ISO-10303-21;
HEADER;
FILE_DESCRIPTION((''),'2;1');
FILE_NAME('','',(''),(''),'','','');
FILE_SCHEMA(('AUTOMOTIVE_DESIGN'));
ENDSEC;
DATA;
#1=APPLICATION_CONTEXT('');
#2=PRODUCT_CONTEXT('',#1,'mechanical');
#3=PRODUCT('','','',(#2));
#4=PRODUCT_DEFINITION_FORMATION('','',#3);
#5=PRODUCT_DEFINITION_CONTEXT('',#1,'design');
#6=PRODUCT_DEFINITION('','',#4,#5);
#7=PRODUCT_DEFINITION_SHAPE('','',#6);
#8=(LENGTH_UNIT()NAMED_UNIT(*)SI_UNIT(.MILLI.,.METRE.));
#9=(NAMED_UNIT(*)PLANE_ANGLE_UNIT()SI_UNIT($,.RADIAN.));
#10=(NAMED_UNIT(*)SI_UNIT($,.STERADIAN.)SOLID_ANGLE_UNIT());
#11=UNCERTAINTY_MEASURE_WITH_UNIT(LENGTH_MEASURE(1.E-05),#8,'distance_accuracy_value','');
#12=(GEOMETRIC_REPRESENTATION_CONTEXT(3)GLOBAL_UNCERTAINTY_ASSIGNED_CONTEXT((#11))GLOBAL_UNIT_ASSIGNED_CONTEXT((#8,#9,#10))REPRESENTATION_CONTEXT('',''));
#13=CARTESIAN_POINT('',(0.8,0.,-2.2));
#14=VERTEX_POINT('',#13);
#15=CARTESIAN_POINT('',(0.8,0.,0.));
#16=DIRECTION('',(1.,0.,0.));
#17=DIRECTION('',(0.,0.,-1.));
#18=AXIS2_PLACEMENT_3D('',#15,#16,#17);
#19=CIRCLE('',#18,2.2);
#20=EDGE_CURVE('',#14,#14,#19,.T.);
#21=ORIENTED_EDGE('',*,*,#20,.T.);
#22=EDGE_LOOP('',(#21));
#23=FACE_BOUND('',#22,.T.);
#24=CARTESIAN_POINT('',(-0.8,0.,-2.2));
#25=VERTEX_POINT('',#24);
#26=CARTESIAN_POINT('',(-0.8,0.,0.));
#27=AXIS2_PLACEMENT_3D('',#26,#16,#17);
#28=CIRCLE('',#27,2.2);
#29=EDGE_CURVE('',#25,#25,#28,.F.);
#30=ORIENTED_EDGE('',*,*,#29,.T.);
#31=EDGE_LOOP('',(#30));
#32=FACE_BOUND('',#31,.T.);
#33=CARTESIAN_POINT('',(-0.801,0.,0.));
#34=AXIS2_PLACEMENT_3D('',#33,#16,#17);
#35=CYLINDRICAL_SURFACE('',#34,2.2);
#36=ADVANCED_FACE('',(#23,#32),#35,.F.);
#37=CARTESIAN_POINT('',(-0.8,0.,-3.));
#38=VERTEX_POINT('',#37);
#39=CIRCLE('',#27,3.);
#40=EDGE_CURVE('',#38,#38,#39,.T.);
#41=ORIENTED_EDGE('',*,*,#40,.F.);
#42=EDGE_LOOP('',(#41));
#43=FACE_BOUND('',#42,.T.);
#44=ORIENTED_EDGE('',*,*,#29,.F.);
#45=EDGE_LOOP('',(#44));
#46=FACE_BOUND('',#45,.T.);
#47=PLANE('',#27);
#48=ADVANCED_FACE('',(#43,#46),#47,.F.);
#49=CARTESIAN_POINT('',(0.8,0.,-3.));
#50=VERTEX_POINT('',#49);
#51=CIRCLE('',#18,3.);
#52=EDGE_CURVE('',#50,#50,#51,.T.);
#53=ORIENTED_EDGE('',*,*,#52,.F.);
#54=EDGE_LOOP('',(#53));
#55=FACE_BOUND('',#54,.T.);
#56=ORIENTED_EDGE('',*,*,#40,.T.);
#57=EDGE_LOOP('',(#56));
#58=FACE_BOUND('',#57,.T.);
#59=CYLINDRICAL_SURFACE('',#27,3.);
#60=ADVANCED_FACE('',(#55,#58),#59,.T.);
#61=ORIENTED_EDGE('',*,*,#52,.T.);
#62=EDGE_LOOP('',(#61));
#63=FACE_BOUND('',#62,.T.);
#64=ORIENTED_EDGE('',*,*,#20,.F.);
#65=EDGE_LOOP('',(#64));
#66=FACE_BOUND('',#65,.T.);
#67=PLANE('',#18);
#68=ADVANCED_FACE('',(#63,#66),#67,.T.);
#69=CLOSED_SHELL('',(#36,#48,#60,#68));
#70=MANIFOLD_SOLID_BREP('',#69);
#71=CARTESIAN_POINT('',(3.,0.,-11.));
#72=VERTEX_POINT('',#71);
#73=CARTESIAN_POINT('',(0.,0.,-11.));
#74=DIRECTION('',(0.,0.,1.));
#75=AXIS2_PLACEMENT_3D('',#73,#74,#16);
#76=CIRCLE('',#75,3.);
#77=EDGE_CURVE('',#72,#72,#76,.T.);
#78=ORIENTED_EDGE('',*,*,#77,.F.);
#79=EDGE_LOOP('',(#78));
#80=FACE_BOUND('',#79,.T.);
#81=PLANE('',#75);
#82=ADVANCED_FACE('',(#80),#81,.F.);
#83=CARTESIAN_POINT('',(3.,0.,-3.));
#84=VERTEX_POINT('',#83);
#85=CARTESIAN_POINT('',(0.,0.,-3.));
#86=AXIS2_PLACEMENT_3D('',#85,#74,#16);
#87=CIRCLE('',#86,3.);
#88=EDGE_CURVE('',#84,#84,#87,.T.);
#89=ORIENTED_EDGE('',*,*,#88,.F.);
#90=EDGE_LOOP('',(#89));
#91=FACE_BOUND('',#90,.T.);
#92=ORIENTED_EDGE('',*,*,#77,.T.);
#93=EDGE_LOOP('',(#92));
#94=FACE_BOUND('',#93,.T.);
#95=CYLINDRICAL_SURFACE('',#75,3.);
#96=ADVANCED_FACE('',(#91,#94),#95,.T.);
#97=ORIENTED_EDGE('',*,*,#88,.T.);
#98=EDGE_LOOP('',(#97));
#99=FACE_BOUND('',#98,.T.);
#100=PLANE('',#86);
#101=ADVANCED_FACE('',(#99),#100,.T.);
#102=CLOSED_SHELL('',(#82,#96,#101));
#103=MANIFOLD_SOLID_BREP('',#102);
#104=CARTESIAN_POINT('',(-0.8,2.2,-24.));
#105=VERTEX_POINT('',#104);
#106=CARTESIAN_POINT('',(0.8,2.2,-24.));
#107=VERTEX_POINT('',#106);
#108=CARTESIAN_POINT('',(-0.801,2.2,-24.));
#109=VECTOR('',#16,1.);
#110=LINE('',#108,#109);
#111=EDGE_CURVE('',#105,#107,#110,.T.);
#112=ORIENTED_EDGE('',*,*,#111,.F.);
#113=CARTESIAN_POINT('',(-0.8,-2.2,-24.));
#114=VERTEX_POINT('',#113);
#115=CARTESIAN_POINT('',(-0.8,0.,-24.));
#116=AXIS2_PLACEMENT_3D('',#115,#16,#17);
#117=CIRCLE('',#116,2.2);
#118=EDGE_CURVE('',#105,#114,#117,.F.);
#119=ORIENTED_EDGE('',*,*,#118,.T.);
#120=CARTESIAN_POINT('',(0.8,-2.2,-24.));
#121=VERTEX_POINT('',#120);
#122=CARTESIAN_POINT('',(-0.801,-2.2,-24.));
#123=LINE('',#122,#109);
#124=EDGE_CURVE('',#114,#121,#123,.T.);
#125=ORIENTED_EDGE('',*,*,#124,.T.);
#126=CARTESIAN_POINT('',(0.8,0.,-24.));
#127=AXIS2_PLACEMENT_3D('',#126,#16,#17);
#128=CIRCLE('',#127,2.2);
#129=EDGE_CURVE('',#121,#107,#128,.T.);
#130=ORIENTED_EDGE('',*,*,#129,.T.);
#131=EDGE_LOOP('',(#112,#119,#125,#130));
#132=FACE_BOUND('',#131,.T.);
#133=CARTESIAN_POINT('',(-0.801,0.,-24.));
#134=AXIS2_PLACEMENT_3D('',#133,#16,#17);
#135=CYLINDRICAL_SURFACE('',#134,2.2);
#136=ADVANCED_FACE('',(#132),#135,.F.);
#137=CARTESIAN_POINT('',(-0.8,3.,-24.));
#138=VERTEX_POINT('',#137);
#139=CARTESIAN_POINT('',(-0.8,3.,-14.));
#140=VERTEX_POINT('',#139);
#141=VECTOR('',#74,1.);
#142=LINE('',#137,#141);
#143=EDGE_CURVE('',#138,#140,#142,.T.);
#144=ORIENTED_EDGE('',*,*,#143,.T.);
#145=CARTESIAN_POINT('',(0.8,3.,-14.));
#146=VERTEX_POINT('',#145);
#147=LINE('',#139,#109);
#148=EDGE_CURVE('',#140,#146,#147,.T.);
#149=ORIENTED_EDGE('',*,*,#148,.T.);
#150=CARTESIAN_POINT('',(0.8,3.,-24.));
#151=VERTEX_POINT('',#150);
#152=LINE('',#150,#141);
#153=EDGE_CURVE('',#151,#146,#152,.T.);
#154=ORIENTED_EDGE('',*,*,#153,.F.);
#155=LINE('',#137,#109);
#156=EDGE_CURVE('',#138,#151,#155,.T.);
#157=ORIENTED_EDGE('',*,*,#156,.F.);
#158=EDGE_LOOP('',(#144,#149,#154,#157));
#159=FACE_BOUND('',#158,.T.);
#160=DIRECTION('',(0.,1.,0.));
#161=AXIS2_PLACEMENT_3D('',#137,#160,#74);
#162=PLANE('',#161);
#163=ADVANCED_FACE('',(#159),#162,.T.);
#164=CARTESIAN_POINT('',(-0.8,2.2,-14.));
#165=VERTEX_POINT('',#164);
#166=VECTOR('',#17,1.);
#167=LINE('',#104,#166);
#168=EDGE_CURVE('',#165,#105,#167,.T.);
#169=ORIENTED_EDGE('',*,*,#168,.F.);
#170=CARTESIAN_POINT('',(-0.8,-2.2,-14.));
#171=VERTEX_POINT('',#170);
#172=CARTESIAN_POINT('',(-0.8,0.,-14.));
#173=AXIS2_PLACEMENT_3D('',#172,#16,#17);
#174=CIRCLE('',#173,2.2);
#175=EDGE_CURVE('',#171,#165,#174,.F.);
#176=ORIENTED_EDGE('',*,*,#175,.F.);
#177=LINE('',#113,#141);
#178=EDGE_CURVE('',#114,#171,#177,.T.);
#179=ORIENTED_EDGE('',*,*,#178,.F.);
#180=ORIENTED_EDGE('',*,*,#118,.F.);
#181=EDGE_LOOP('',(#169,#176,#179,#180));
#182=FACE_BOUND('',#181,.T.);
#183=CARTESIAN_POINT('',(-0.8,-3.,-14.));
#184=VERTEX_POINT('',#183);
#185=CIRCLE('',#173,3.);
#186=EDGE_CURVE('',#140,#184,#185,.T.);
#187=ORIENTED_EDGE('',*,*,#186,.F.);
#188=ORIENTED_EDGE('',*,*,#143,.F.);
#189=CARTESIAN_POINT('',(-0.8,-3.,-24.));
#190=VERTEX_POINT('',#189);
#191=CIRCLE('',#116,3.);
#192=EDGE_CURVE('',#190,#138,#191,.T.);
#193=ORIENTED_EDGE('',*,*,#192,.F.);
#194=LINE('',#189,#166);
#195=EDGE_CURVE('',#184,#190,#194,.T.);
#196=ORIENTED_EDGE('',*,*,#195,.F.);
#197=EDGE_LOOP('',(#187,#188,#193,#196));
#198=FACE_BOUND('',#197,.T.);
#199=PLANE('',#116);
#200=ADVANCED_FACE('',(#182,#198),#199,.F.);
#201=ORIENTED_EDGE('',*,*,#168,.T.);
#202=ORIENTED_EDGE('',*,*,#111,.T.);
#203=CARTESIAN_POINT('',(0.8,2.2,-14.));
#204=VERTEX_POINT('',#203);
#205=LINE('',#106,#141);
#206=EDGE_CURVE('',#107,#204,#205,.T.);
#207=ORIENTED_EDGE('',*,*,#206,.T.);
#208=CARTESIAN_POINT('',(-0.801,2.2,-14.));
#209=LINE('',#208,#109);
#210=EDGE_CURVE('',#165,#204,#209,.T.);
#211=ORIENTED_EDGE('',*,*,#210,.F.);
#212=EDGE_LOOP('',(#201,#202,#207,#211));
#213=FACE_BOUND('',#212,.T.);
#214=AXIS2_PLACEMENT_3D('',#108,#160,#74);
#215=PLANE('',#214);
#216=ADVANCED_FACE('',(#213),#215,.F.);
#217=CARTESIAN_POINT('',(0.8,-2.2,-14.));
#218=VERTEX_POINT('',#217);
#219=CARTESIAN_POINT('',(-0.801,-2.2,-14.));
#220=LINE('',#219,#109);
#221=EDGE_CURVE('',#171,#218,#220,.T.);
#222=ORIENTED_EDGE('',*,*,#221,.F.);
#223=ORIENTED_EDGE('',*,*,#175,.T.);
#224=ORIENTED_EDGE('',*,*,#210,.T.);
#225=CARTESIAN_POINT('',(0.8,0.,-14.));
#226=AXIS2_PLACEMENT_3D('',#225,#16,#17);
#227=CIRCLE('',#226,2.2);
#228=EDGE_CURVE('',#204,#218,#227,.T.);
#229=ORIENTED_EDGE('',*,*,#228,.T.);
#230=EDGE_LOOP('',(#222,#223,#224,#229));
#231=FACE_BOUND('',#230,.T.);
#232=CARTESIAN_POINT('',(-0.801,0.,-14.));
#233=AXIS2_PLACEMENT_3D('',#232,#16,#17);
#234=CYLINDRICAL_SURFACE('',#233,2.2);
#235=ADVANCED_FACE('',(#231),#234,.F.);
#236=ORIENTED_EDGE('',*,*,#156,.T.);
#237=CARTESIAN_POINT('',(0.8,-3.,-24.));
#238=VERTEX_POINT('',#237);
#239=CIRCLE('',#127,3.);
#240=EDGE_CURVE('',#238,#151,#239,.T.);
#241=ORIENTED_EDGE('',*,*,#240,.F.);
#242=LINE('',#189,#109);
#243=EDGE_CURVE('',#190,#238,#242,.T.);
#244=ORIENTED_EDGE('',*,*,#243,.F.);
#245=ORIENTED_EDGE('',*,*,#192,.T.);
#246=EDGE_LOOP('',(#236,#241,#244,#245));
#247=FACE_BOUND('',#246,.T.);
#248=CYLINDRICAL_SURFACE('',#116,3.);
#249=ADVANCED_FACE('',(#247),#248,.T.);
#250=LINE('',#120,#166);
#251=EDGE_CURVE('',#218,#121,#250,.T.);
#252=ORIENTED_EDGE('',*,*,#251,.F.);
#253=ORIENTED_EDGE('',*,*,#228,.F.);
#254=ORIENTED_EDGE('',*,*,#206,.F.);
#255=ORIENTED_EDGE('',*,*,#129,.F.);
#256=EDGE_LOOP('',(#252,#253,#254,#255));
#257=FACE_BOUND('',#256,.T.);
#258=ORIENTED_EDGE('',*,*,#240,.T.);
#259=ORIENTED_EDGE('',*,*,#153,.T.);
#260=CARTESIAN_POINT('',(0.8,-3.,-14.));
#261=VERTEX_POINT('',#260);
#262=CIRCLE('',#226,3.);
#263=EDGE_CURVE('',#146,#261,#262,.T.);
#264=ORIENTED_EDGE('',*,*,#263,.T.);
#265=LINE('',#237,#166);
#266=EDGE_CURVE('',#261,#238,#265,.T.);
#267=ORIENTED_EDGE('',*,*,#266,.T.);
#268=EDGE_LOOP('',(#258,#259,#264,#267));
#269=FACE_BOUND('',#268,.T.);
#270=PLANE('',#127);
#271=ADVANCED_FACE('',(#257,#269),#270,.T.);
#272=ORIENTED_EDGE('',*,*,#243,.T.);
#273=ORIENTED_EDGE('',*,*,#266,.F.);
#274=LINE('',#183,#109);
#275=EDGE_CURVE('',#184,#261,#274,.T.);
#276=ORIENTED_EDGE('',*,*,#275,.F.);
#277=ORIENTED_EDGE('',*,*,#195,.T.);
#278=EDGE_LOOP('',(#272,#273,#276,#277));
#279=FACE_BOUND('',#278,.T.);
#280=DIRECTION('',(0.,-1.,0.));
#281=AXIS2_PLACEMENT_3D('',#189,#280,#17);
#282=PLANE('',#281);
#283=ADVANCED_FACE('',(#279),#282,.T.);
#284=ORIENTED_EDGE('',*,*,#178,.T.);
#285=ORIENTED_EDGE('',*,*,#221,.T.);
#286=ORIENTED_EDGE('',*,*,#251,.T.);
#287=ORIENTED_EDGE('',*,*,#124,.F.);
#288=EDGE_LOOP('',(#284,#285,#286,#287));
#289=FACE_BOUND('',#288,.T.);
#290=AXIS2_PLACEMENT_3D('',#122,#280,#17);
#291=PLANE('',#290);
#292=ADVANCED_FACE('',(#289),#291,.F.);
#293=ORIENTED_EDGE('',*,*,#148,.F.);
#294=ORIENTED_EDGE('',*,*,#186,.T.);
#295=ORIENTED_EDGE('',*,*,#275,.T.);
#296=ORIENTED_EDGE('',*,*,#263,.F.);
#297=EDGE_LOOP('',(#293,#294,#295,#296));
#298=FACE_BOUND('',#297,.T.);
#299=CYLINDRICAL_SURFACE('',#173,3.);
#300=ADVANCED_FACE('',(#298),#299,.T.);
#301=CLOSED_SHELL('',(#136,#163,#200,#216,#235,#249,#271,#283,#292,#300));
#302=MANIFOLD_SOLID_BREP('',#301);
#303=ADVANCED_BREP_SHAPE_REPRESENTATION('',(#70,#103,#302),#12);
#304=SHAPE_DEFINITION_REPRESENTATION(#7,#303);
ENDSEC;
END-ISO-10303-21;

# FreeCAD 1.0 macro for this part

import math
import FreeCAD as App
import Part
import Sketcher

doc = App.newDocument("Part")
params = doc.addObject("Spreadsheet::Sheet", "Params")
for row, (alias, value) in enumerate([
    ("sketch1_diameter", "6 mm"),
    ("pad1_length", "0.8 mm"),
    ("pad1_length2", "0.8 mm"),
    ("sketch2_radius", "3 mm"),
    ("sketch2_height", "10 mm"),
    ("pad2_length", "0.8 mm"),
    ("pad2_length2", "0.8 mm"),
    ("sketch3_diameter", "4.4 mm"),
    ("sketch3_height", "10 mm"),
    ("pad3_length", "1.6 mm"),
    ("sketch4_diameter", "6 mm"),
    ("pad4_length", "8 mm"),
], start=1):
    params.set(f"A{row}", alias)
    params.set(f"B{row}", "=" + value)
    params.setAlias(f"B{row}", alias)

body = doc.addObject("PartDesign::Body", "Body")

sketch1 = body.newObject("Sketcher::SketchObject", "Sketch")
sketch1.AttachmentSupport = (doc.getObject("YZ_Plane"), [""])
sketch1.MapMode = "FlatFace"
sketch1.addGeometry(Part.Circle(App.Vector(0, 0, 0), App.Vector(0, 0, 1), 3), False)
sketch1.addConstraint([
    Sketcher.Constraint("Coincident", 0, 3, -1, 1),
    Sketcher.Constraint("Diameter", 0, 6.0),
])
sketch1.setExpression("Constraints[1]", "Params.sketch1_diameter")
pad1 = body.newObject("PartDesign::Pad", "Pad")
pad1.Profile = sketch1
pad1.Type = "TwoLengths"
pad1.setExpression("Length", "Params.pad1_length")
pad1.setExpression("Length2", "Params.pad1_length2")
body2 = doc.addObject("PartDesign::Body", "Body001")

sketch2 = body2.newObject("Sketcher::SketchObject", "Sketch001")
sketch2.AttachmentSupport = (doc.getObject("YZ_Plane001"), [""])
sketch2.MapMode = "FlatFace"
sketch2.addGeometry([
    Part.LineSegment(App.Vector(-3, -14, 0), App.Vector(-3, -24, 0)),
    Part.ArcOfCircle(Part.Circle(App.Vector(0, -24, 0), App.Vector(0, 0, 1), 3), math.radians(180), math.radians(360)),
    Part.LineSegment(App.Vector(3, -24, 0), App.Vector(3, -14, 0)),
    Part.ArcOfCircle(Part.Circle(App.Vector(0, -14, 0), App.Vector(0, 0, 1), 3), math.radians(0), math.radians(180)),
], False)
sketch2.addConstraint([
    Sketcher.Constraint("Tangent", 0, 2, 1, 1),
    Sketcher.Constraint("Tangent", 1, 2, 2, 1),
    Sketcher.Constraint("Tangent", 2, 2, 3, 1),
    Sketcher.Constraint("Tangent", 3, 2, 0, 1),
    Sketcher.Constraint("Vertical", 0),
    Sketcher.Constraint("Vertical", 2),
    Sketcher.Constraint("PointOnObject", 1, 3, -2),
    Sketcher.Constraint("Radius", 1, 3.0),
    Sketcher.Constraint("DistanceY", 0, 2, 0, 1, 10.0),
    Sketcher.Constraint("DistanceY", 1, 3, -1, 1, 24.0),
])
sketch2.setExpression("Constraints[7]", "Params.sketch2_radius")
sketch2.setExpression("Constraints[8]", "Params.sketch2_height")
pad2 = body2.newObject("PartDesign::Pad", "Pad001")
pad2.Profile = sketch2
pad2.Type = "TwoLengths"
pad2.setExpression("Length", "Params.pad2_length")
pad2.setExpression("Length2", "Params.pad2_length2")
body3 = doc.addObject("PartDesign::Body", "Body002")
body3.AllowCompound = True

sketch3 = body3.newObject("Sketcher::SketchObject", "Sketch002")
sketch3.AttachmentSupport = (doc.getObject("YZ_Plane002"), [""])
sketch3.MapMode = "FlatFace"
sketch3.AttachmentOffset = App.Placement(App.Vector(0, 0, 0.8), App.Rotation())
sketch3.addGeometry([
    Part.Circle(App.Vector(0, 0, 0), App.Vector(0, 0, 1), 2.2),
    Part.LineSegment(App.Vector(-2.2, -14, 0), App.Vector(-2.2, -24, 0)),
    Part.ArcOfCircle(Part.Circle(App.Vector(0, -24, 0), App.Vector(0, 0, 1), 2.2), math.radians(180), math.radians(360)),
    Part.LineSegment(App.Vector(2.2, -24, 0), App.Vector(2.2, -14, 0)),
    Part.ArcOfCircle(Part.Circle(App.Vector(0, -14, 0), App.Vector(0, 0, 1), 2.2), math.radians(0), math.radians(180)),
], False)
sketch3.addConstraint([
    Sketcher.Constraint("Tangent", 1, 2, 2, 1),
    Sketcher.Constraint("Tangent", 2, 2, 3, 1),
    Sketcher.Constraint("Tangent", 3, 2, 4, 1),
    Sketcher.Constraint("Tangent", 4, 2, 1, 1),
    Sketcher.Constraint("Vertical", 1),
    Sketcher.Constraint("Vertical", 3),
    Sketcher.Constraint("Coincident", 0, 3, -1, 1),
    Sketcher.Constraint("Equal", 0, 2),
    Sketcher.Constraint("PointOnObject", 2, 3, -2),
    Sketcher.Constraint("Diameter", 0, 4.4),
    Sketcher.Constraint("DistanceY", 1, 2, 1, 1, 10.0),
    Sketcher.Constraint("DistanceY", 2, 3, -1, 1, 24.0),
])
sketch3.setExpression("Constraints[9]", "Params.sketch3_diameter")
sketch3.setExpression("Constraints[10]", "Params.sketch3_height")
pad3 = body3.newObject("PartDesign::Pad", "Pad002")
pad3.Profile = sketch3
pad3.setExpression("Length", "Params.pad3_length")
pad3.Reversed = True
doc.recompute()

body4 = doc.addObject("PartDesign::Body", "Body003")
body4.BaseFeature = body3
boolean = body.newObject("PartDesign::Boolean", "Boolean")
boolean.Type = "Cut"
boolean.addObjects([body4])
doc.recompute()

boolean2 = body2.newObject("PartDesign::Boolean", "Boolean001")
boolean2.Type = "Cut"
boolean2.addObjects([body3])
body5 = doc.addObject("PartDesign::Body", "Body004")

sketch4 = body5.newObject("Sketcher::SketchObject", "Sketch003")
sketch4.AttachmentSupport = (doc.getObject("XY_Plane004"), [""])
sketch4.MapMode = "FlatFace"
sketch4.AttachmentOffset = App.Placement(App.Vector(0, 0, -3), App.Rotation())
sketch4.addGeometry(Part.Circle(App.Vector(0, 0, 0), App.Vector(0, 0, 1), 3), False)
sketch4.addConstraint([
    Sketcher.Constraint("Coincident", 0, 3, -1, 1),
    Sketcher.Constraint("Diameter", 0, 6.0),
])
sketch4.setExpression("Constraints[1]", "Params.sketch4_diameter")
pad4 = body5.newObject("PartDesign::Pad", "Pad003")
pad4.Profile = sketch4
pad4.setExpression("Length", "Params.pad4_length")
pad4.Reversed = True

doc.recompute()
